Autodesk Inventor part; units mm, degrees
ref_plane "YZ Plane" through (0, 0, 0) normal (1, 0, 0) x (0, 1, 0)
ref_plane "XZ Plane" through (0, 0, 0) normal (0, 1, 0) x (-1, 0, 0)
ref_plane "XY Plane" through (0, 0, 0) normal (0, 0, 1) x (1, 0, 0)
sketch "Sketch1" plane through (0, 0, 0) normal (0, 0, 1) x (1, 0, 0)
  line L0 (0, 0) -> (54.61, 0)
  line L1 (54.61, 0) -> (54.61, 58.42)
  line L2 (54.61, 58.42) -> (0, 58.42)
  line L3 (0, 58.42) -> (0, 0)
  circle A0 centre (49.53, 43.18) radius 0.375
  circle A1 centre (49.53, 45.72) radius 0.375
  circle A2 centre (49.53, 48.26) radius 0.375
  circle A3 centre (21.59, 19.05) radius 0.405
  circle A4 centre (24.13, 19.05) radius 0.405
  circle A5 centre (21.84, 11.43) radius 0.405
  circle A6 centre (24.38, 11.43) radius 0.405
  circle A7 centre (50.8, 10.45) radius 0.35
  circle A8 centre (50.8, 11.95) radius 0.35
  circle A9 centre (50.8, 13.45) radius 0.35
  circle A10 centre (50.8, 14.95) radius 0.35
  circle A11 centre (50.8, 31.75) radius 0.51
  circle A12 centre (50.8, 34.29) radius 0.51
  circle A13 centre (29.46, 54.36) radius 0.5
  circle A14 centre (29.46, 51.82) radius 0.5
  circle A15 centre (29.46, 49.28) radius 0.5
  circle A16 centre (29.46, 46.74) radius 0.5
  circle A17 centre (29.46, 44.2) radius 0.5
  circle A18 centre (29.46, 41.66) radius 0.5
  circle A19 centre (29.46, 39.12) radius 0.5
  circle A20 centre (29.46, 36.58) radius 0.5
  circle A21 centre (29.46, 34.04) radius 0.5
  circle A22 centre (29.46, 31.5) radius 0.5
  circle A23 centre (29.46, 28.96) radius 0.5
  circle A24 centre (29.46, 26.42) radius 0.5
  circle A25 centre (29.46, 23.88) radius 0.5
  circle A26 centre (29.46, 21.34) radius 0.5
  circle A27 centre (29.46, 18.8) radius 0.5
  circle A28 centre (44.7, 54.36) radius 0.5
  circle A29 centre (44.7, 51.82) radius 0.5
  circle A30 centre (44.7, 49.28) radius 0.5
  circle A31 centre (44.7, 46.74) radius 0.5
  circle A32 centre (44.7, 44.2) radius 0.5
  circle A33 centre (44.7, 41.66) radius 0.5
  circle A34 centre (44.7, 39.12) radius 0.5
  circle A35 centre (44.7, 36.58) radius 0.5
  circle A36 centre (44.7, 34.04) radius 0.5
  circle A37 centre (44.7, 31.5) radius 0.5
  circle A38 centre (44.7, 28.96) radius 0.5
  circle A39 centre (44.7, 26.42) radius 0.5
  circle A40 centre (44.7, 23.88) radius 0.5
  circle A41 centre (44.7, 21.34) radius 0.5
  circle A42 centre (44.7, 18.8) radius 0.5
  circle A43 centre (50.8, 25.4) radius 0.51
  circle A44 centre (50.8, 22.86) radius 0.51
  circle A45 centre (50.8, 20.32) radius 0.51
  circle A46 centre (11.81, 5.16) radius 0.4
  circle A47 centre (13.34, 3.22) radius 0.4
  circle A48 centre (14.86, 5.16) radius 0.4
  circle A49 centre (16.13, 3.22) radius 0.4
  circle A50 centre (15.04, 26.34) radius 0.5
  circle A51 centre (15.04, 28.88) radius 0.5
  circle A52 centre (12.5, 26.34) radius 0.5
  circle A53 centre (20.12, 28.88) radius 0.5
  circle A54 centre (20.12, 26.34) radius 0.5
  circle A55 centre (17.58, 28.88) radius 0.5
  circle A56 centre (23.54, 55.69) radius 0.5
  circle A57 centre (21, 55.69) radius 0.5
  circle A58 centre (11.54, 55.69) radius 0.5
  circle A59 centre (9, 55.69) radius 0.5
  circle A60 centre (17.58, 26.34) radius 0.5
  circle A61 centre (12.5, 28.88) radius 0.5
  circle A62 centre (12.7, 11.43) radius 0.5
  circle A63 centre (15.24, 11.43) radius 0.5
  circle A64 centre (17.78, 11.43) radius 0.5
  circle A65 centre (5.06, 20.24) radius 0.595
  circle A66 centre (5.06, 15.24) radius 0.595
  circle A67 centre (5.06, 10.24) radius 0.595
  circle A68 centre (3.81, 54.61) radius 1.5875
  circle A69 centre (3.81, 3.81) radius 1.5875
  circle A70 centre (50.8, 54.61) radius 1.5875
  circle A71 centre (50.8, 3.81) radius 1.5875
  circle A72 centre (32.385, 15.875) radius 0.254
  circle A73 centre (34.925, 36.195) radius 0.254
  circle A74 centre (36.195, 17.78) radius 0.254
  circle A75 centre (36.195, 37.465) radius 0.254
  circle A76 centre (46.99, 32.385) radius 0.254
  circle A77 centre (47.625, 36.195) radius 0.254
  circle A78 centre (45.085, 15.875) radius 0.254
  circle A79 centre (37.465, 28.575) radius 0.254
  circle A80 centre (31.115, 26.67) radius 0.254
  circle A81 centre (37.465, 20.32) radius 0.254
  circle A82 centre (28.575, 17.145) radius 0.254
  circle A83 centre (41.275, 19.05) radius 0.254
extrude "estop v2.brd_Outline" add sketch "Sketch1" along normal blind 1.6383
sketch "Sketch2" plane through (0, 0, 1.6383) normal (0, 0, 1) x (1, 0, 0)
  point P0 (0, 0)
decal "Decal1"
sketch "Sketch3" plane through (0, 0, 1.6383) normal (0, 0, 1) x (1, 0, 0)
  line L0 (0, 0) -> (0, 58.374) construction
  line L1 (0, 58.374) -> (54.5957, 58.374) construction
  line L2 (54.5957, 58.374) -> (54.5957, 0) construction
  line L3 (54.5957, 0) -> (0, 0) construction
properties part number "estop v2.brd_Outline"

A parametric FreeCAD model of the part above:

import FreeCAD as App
import Part
import Sketcher
Q = App.Units.Quantity

doc = App.newDocument("Part")
body = doc.addObject("PartDesign::Body", "Body")

# Sketch on XY plane
sketch1 = body.newObject("Sketcher::SketchObject", "Sketch")
sketch1.AttachmentSupport = (doc.getObject("XY_Plane"), [""])
sketch1.MapMode = "FlatFace"
sketch1.addGeometry([
    Part.LineSegment(App.Vector(0, 58.42, 0), App.Vector(0, 0, 0)),  # 0
    Part.LineSegment(App.Vector(0, 0, 0), App.Vector(54.61, 0, 0)),  # 1
    Part.LineSegment(App.Vector(54.61, 0, 0), App.Vector(54.61, 58.42, 0)),  # 2
    Part.LineSegment(App.Vector(54.61, 58.42, 0), App.Vector(0, 58.42, 0)),  # 3
    Part.Circle(App.Vector(3.81, 3.81, 0), App.Vector(0, 0, 1), 1.5875),  # 4
    Part.Circle(App.Vector(13.34, 3.22, 0), App.Vector(0, 0, 1), 0.4),  # 5
    Part.Circle(App.Vector(11.81, 5.16, 0), App.Vector(0, 0, 1), 0.4),  # 6
    Part.Circle(App.Vector(5.06, 10.24, 0), App.Vector(0, 0, 1), 0.595),  # 7
    Part.Circle(App.Vector(12.7, 11.43, 0), App.Vector(0, 0, 1), 0.5),  # 8
    Part.Circle(App.Vector(16.13, 3.22, 0), App.Vector(0, 0, 1), 0.4),  # 9
    Part.Circle(App.Vector(14.86, 5.16, 0), App.Vector(0, 0, 1), 0.4),  # 10
    Part.Circle(App.Vector(15.24, 11.43, 0), App.Vector(0, 0, 1), 0.5),  # 11
    Part.Circle(App.Vector(17.78, 11.43, 0), App.Vector(0, 0, 1), 0.5),  # 12
    Part.Circle(App.Vector(21.84, 11.43, 0), App.Vector(0, 0, 1), 0.405),  # 13
    Part.Circle(App.Vector(24.38, 11.43, 0), App.Vector(0, 0, 1), 0.405),  # 14
    Part.Circle(App.Vector(5.06, 15.24, 0), App.Vector(0, 0, 1), 0.595),  # 15
    Part.Circle(App.Vector(5.06, 20.24, 0), App.Vector(0, 0, 1), 0.595),  # 16
    Part.Circle(App.Vector(12.5, 26.34, 0), App.Vector(0, 0, 1), 0.5),  # 17
    Part.Circle(App.Vector(12.5, 28.88, 0), App.Vector(0, 0, 1), 0.5),  # 18
    Part.Circle(App.Vector(21.59, 19.05, 0), App.Vector(0, 0, 1), 0.405),  # 19
    Part.Circle(App.Vector(24.13, 19.05, 0), App.Vector(0, 0, 1), 0.405),  # 20
    Part.Circle(App.Vector(15.04, 26.34, 0), App.Vector(0, 0, 1), 0.5),  # 21
    Part.Circle(App.Vector(15.04, 28.88, 0), App.Vector(0, 0, 1), 0.5),  # 22
    Part.Circle(App.Vector(17.58, 26.34, 0), App.Vector(0, 0, 1), 0.5),  # 23
    Part.Circle(App.Vector(20.12, 26.34, 0), App.Vector(0, 0, 1), 0.5),  # 24
    Part.Circle(App.Vector(17.58, 28.88, 0), App.Vector(0, 0, 1), 0.5),  # 25
    Part.Circle(App.Vector(20.12, 28.88, 0), App.Vector(0, 0, 1), 0.5),  # 26
    Part.Circle(App.Vector(50.8, 3.81, 0), App.Vector(0, 0, 1), 1.5875),  # 27
    Part.Circle(App.Vector(50.8, 10.45, 0), App.Vector(0, 0, 1), 0.35),  # 28
    Part.Circle(App.Vector(50.8, 11.95, 0), App.Vector(0, 0, 1), 0.35),  # 29
    Part.Circle(App.Vector(50.8, 13.45, 0), App.Vector(0, 0, 1), 0.35),  # 30
    Part.Circle(App.Vector(28.575, 17.145, 0), App.Vector(0, 0, 1), 0.254),  # 31
    Part.Circle(App.Vector(32.385, 15.875, 0), App.Vector(0, 0, 1), 0.254),  # 32
    Part.Circle(App.Vector(29.46, 18.8, 0), App.Vector(0, 0, 1), 0.5),  # 33
    Part.Circle(App.Vector(29.46, 21.34, 0), App.Vector(0, 0, 1), 0.5),  # 34
    Part.Circle(App.Vector(36.195, 17.78, 0), App.Vector(0, 0, 1), 0.254),  # 35
    Part.Circle(App.Vector(37.465, 20.32, 0), App.Vector(0, 0, 1), 0.254),  # 36
    Part.Circle(App.Vector(29.46, 23.88, 0), App.Vector(0, 0, 1), 0.5),  # 37
    Part.Circle(App.Vector(29.46, 26.42, 0), App.Vector(0, 0, 1), 0.5),  # 38
    Part.Circle(App.Vector(29.46, 28.96, 0), App.Vector(0, 0, 1), 0.5),  # 39
    Part.Circle(App.Vector(31.115, 26.67, 0), App.Vector(0, 0, 1), 0.254),  # 40
    Part.Circle(App.Vector(37.465, 28.575, 0), App.Vector(0, 0, 1), 0.254),  # 41
    Part.Circle(App.Vector(45.085, 15.875, 0), App.Vector(0, 0, 1), 0.254),  # 42
    Part.Circle(App.Vector(41.275, 19.05, 0), App.Vector(0, 0, 1), 0.254),  # 43
    Part.Circle(App.Vector(44.7, 18.8, 0), App.Vector(0, 0, 1), 0.5),  # 44
    Part.Circle(App.Vector(44.7, 21.34, 0), App.Vector(0, 0, 1), 0.5),  # 45
    Part.Circle(App.Vector(50.8, 14.95, 0), App.Vector(0, 0, 1), 0.35),  # 46
    Part.Circle(App.Vector(50.8, 20.32, 0), App.Vector(0, 0, 1), 0.51),  # 47
    Part.Circle(App.Vector(44.7, 23.88, 0), App.Vector(0, 0, 1), 0.5),  # 48
    Part.Circle(App.Vector(44.7, 26.42, 0), App.Vector(0, 0, 1), 0.5),  # 49
    Part.Circle(App.Vector(44.7, 28.96, 0), App.Vector(0, 0, 1), 0.5),  # 50
    Part.Circle(App.Vector(50.8, 22.86, 0), App.Vector(0, 0, 1), 0.51),  # 51
    Part.Circle(App.Vector(50.8, 25.4, 0), App.Vector(0, 0, 1), 0.51),  # 52
    Part.Circle(App.Vector(3.81, 54.61, 0), App.Vector(0, 0, 1), 1.5875),  # 53
    Part.Circle(App.Vector(9, 55.69, 0), App.Vector(0, 0, 1), 0.5),  # 54
    Part.Circle(App.Vector(11.54, 55.69, 0), App.Vector(0, 0, 1), 0.5),  # 55
    Part.Circle(App.Vector(21, 55.69, 0), App.Vector(0, 0, 1), 0.5),  # 56
    Part.Circle(App.Vector(23.54, 55.69, 0), App.Vector(0, 0, 1), 0.5),  # 57
    Part.Circle(App.Vector(29.46, 31.5, 0), App.Vector(0, 0, 1), 0.5),  # 58
    Part.Circle(App.Vector(29.46, 34.04, 0), App.Vector(0, 0, 1), 0.5),  # 59
    Part.Circle(App.Vector(34.925, 36.195, 0), App.Vector(0, 0, 1), 0.254),  # 60
    Part.Circle(App.Vector(29.46, 36.58, 0), App.Vector(0, 0, 1), 0.5),  # 61
    Part.Circle(App.Vector(29.46, 39.12, 0), App.Vector(0, 0, 1), 0.5),  # 62
    Part.Circle(App.Vector(29.46, 41.66, 0), App.Vector(0, 0, 1), 0.5),  # 63
    Part.Circle(App.Vector(36.195, 37.465, 0), App.Vector(0, 0, 1), 0.254),  # 64
    Part.Circle(App.Vector(44.7, 31.5, 0), App.Vector(0, 0, 1), 0.5),  # 65
    Part.Circle(App.Vector(46.99, 32.385, 0), App.Vector(0, 0, 1), 0.254),  # 66
    Part.Circle(App.Vector(44.7, 34.04, 0), App.Vector(0, 0, 1), 0.5),  # 67
    Part.Circle(App.Vector(47.625, 36.195, 0), App.Vector(0, 0, 1), 0.254),  # 68
    Part.Circle(App.Vector(50.8, 31.75, 0), App.Vector(0, 0, 1), 0.51),  # 69
    Part.Circle(App.Vector(50.8, 34.29, 0), App.Vector(0, 0, 1), 0.51),  # 70
    Part.Circle(App.Vector(44.7, 36.58, 0), App.Vector(0, 0, 1), 0.5),  # 71
    Part.Circle(App.Vector(44.7, 39.12, 0), App.Vector(0, 0, 1), 0.5),  # 72
    Part.Circle(App.Vector(44.7, 41.66, 0), App.Vector(0, 0, 1), 0.5),  # 73
    Part.Circle(App.Vector(49.53, 43.18, 0), App.Vector(0, 0, 1), 0.375),  # 74
    Part.Circle(App.Vector(29.46, 44.2, 0), App.Vector(0, 0, 1), 0.5),  # 75
    Part.Circle(App.Vector(29.46, 46.74, 0), App.Vector(0, 0, 1), 0.5),  # 76
    Part.Circle(App.Vector(29.46, 49.28, 0), App.Vector(0, 0, 1), 0.5),  # 77
    Part.Circle(App.Vector(29.46, 51.82, 0), App.Vector(0, 0, 1), 0.5),  # 78
    Part.Circle(App.Vector(29.46, 54.36, 0), App.Vector(0, 0, 1), 0.5),  # 79
    Part.Circle(App.Vector(44.7, 44.2, 0), App.Vector(0, 0, 1), 0.5),  # 80
    Part.Circle(App.Vector(44.7, 46.74, 0), App.Vector(0, 0, 1), 0.5),  # 81
    Part.Circle(App.Vector(44.7, 49.28, 0), App.Vector(0, 0, 1), 0.5),  # 82
    Part.Circle(App.Vector(49.53, 45.72, 0), App.Vector(0, 0, 1), 0.375),  # 83
    Part.Circle(App.Vector(49.53, 48.26, 0), App.Vector(0, 0, 1), 0.375),  # 84
    Part.Circle(App.Vector(44.7, 51.82, 0), App.Vector(0, 0, 1), 0.5),  # 85
    Part.Circle(App.Vector(44.7, 54.36, 0), App.Vector(0, 0, 1), 0.5),  # 86
    Part.Circle(App.Vector(50.8, 54.61, 0), App.Vector(0, 0, 1), 1.5875),  # 87
], False)
sketch1.addConstraint([
    Sketcher.Constraint("Coincident", 0, 2, 1, 1),
    Sketcher.Constraint("Coincident", 1, 2, 2, 1),
    Sketcher.Constraint("Coincident", 2, 2, 3, 1),
    Sketcher.Constraint("Coincident", 3, 2, 0, 1),
    Sketcher.Constraint("Vertical", 0),
    Sketcher.Constraint("Horizontal", 1),
    Sketcher.Constraint("Vertical", 2),
    Sketcher.Constraint("Horizontal", 3),
    Sketcher.Constraint("Coincident", 0, 2, -1, 1),
    Sketcher.Constraint("Equal", 5, 6),
    Sketcher.Constraint("Equal", 6, 9),
    Sketcher.Constraint("Equal", 9, 10),
    Sketcher.Constraint("Equal", 8, 11),
    Sketcher.Constraint("Equal", 11, 12),
    Sketcher.Constraint("Equal", 13, 14),
    Sketcher.Constraint("Equal", 7, 15),
    Sketcher.Constraint("Equal", 15, 16),
    Sketcher.Constraint("Equal", 12, 17),
    Sketcher.Constraint("Equal", 17, 18),
    Sketcher.Constraint("Equal", 14, 19),
    Sketcher.Constraint("Equal", 19, 20),
    Sketcher.Constraint("Equal", 18, 21),
    Sketcher.Constraint("Equal", 21, 22),
    Sketcher.Constraint("Equal", 22, 23),
    Sketcher.Constraint("Equal", 23, 24),
    Sketcher.Constraint("Equal", 24, 25),
    Sketcher.Constraint("Equal", 25, 26),
    Sketcher.Constraint("Equal", 4, 27),
    Sketcher.Constraint("Equal", 28, 29),
    Sketcher.Constraint("Equal", 29, 30),
    Sketcher.Constraint("Equal", 31, 32),
    Sketcher.Constraint("Equal", 26, 33),
    Sketcher.Constraint("Equal", 33, 34),
    Sketcher.Constraint("Equal", 32, 35),
    Sketcher.Constraint("Equal", 35, 36),
    Sketcher.Constraint("Equal", 34, 37),
    Sketcher.Constraint("Equal", 37, 38),
    Sketcher.Constraint("Equal", 38, 39),
    Sketcher.Constraint("Equal", 36, 40),
    Sketcher.Constraint("Equal", 40, 41),
    Sketcher.Constraint("Equal", 41, 42),
    Sketcher.Constraint("Equal", 42, 43),
    Sketcher.Constraint("Equal", 39, 44),
    Sketcher.Constraint("Equal", 44, 45),
    Sketcher.Constraint("Equal", 30, 46),
    Sketcher.Constraint("Equal", 45, 48),
    Sketcher.Constraint("Equal", 48, 49),
    Sketcher.Constraint("Equal", 49, 50),
    Sketcher.Constraint("Equal", 47, 51),
    Sketcher.Constraint("Equal", 51, 52),
    Sketcher.Constraint("Equal", 27, 53),
    Sketcher.Constraint("Equal", 50, 54),
    Sketcher.Constraint("Equal", 54, 55),
    Sketcher.Constraint("Equal", 55, 56),
    Sketcher.Constraint("Equal", 56, 57),
    Sketcher.Constraint("Equal", 57, 58),
    Sketcher.Constraint("Equal", 58, 59),
    Sketcher.Constraint("Equal", 43, 60),
    Sketcher.Constraint("Equal", 59, 61),
    Sketcher.Constraint("Equal", 61, 62),
    Sketcher.Constraint("Equal", 62, 63),
    Sketcher.Constraint("Equal", 60, 64),
    Sketcher.Constraint("Equal", 63, 65),
    Sketcher.Constraint("Equal", 64, 66),
    Sketcher.Constraint("Equal", 65, 67),
    Sketcher.Constraint("Equal", 66, 68),
    Sketcher.Constraint("Equal", 52, 69),
    Sketcher.Constraint("Equal", 69, 70),
    Sketcher.Constraint("Equal", 67, 71),
    Sketcher.Constraint("Equal", 71, 72),
    Sketcher.Constraint("Equal", 72, 73),
    Sketcher.Constraint("Equal", 73, 75),
    Sketcher.Constraint("Equal", 75, 76),
    Sketcher.Constraint("Equal", 76, 77),
    Sketcher.Constraint("Equal", 77, 78),
    Sketcher.Constraint("Equal", 78, 79),
    Sketcher.Constraint("Equal", 79, 80),
    Sketcher.Constraint("Equal", 80, 81),
    Sketcher.Constraint("Equal", 81, 82),
    Sketcher.Constraint("Equal", 74, 83),
    Sketcher.Constraint("Equal", 83, 84),
    Sketcher.Constraint("Equal", 82, 85),
    Sketcher.Constraint("Equal", 85, 86),
    Sketcher.Constraint("Equal", 53, 87),
    Sketcher.Constraint("Horizontal", 5, 3, 9, 3),
    Sketcher.Constraint("Horizontal", 6, 3, 10, 3),
    Sketcher.Constraint("Horizontal", 8, 3, 11, 3),
    Sketcher.Constraint("Horizontal", 11, 3, 12, 3),
    Sketcher.Constraint("Horizontal", 12, 3, 13, 3),
    Sketcher.Constraint("Horizontal", 13, 3, 14, 3),
    Sketcher.Constraint("Horizontal", 19, 3, 20, 3),
    Sketcher.Constraint("Horizontal", 17, 3, 21, 3),
    Sketcher.Constraint("Horizontal", 18, 3, 22, 3),
    Sketcher.Constraint("Horizontal", 21, 3, 23, 3),
    Sketcher.Constraint("Horizontal", 23, 3, 24, 3),
    Sketcher.Constraint("Horizontal", 22, 3, 25, 3),
    Sketcher.Constraint("Horizontal", 25, 3, 26, 3),
    Sketcher.Constraint("Horizontal", 4, 3, 27, 3),
    Sketcher.Constraint("Horizontal", 32, 3, 42, 3),
    Sketcher.Constraint("Horizontal", 20, 3, 43, 3),
    Sketcher.Constraint("Horizontal", 33, 3, 44, 3),
    Sketcher.Constraint("Horizontal", 34, 3, 45, 3),
    Sketcher.Constraint("Horizontal", 36, 3, 47, 3),
    Sketcher.Constraint("Horizontal", 37, 3, 48, 3),
    Sketcher.Constraint("Horizontal", 38, 3, 49, 3),
    Sketcher.Constraint("Horizontal", 39, 3, 50, 3),
    Sketcher.Constraint("Horizontal", 54, 3, 55, 3),
    Sketcher.Constraint("Horizontal", 55, 3, 56, 3),
    Sketcher.Constraint("Horizontal", 56, 3, 57, 3),
    Sketcher.Constraint("Horizontal", 58, 3, 65, 3),
    Sketcher.Constraint("Horizontal", 59, 3, 67, 3),
    Sketcher.Constraint("Horizontal", 60, 3, 68, 3),
    Sketcher.Constraint("Horizontal", 61, 3, 71, 3),
    Sketcher.Constraint("Horizontal", 62, 3, 72, 3),
    Sketcher.Constraint("Horizontal", 63, 3, 73, 3),
    Sketcher.Constraint("Horizontal", 75, 3, 80, 3),
    Sketcher.Constraint("Horizontal", 76, 3, 81, 3),
    Sketcher.Constraint("Horizontal", 77, 3, 82, 3),
    Sketcher.Constraint("Horizontal", 78, 3, 85, 3),
    Sketcher.Constraint("Horizontal", 79, 3, 86, 3),
    Sketcher.Constraint("Horizontal", 53, 3, 87, 3),
    Sketcher.Constraint("Vertical", 7, 3, 15, 3),
    Sketcher.Constraint("Vertical", 15, 3, 16, 3),
    Sketcher.Constraint("Vertical", 17, 3, 18, 3),
    Sketcher.Constraint("Vertical", 21, 3, 22, 3),
    Sketcher.Constraint("Vertical", 23, 3, 25, 3),
    Sketcher.Constraint("Vertical", 24, 3, 26, 3),
    Sketcher.Constraint("Vertical", 27, 3, 28, 3),
    Sketcher.Constraint("Vertical", 28, 3, 29, 3),
    Sketcher.Constraint("Vertical", 29, 3, 30, 3),
    Sketcher.Constraint("Vertical", 33, 3, 34, 3),
    Sketcher.Constraint("Vertical", 34, 3, 37, 3),
    Sketcher.Constraint("Vertical", 37, 3, 38, 3),
    Sketcher.Constraint("Vertical", 38, 3, 39, 3),
    Sketcher.Constraint("Vertical", 36, 3, 41, 3),
    Sketcher.Constraint("Vertical", 44, 3, 45, 3),
    Sketcher.Constraint("Vertical", 30, 3, 46, 3),
    Sketcher.Constraint("Vertical", 46, 3, 47, 3),
    Sketcher.Constraint("Vertical", 45, 3, 48, 3),
    Sketcher.Constraint("Vertical", 48, 3, 49, 3),
    Sketcher.Constraint("Vertical", 49, 3, 50, 3),
    Sketcher.Constraint("Vertical", 47, 3, 51, 3),
    Sketcher.Constraint("Vertical", 51, 3, 52, 3),
    Sketcher.Constraint("Vertical", 4, 3, 53, 3),
    Sketcher.Constraint("Vertical", 39, 3, 58, 3),
    Sketcher.Constraint("Vertical", 58, 3, 59, 3),
    Sketcher.Constraint("Vertical", 59, 3, 61, 3),
    Sketcher.Constraint("Vertical", 61, 3, 62, 3),
    Sketcher.Constraint("Vertical", 62, 3, 63, 3),
    Sketcher.Constraint("Vertical", 35, 3, 64, 3),
    Sketcher.Constraint("Vertical", 50, 3, 65, 3),
    Sketcher.Constraint("Vertical", 65, 3, 67, 3),
    Sketcher.Constraint("Vertical", 52, 3, 69, 3),
    Sketcher.Constraint("Vertical", 69, 3, 70, 3),
    Sketcher.Constraint("Vertical", 67, 3, 71, 3),
    Sketcher.Constraint("Vertical", 71, 3, 72, 3),
    Sketcher.Constraint("Vertical", 72, 3, 73, 3),
    Sketcher.Constraint("Vertical", 63, 3, 75, 3),
    Sketcher.Constraint("Vertical", 75, 3, 76, 3),
    Sketcher.Constraint("Vertical", 76, 3, 77, 3),
    Sketcher.Constraint("Vertical", 77, 3, 78, 3),
    Sketcher.Constraint("Vertical", 78, 3, 79, 3),
    Sketcher.Constraint("Vertical", 73, 3, 80, 3),
    Sketcher.Constraint("Vertical", 80, 3, 81, 3),
    Sketcher.Constraint("Vertical", 81, 3, 82, 3),
    Sketcher.Constraint("Vertical", 74, 3, 83, 3),
    Sketcher.Constraint("Vertical", 83, 3, 84, 3),
    Sketcher.Constraint("Vertical", 82, 3, 85, 3),
    Sketcher.Constraint("Vertical", 85, 3, 86, 3),
    Sketcher.Constraint("Vertical", 70, 3, 87, 3),
    Sketcher.Constraint("Diameter", 31, Q("0.02 in")),
    Sketcher.Constraint("Diameter", 4, Q("0.125 in")),
    Sketcher.Constraint("DistanceY", 0, 2, 0, 1, Q("2.3 in")),
    Sketcher.Constraint("DistanceX", -1, 1, 27, 3, Q("2 in")),
    Sketcher.Constraint("DistanceY", -1, 1, 52, 3, Q("1 in")),
    Sketcher.Constraint("Diameter", 5, Q("0.0315 in")),
    Sketcher.Constraint("Diameter", 13, Q("0.0319 in")),
    Sketcher.Constraint("DistanceX", 1, 1, 1, 2, Q("2.15 in")),
    Sketcher.Constraint("DistanceX", -1, 1, 8, 3, Q("0.5 in")),
    Sketcher.Constraint("DistanceX", -1, 1, 11, 3, Q("0.6 in")),
    Sketcher.Constraint("DistanceX", -1, 1, 12, 3, Q("0.7 in")),
    Sketcher.Constraint("DistanceY", -1, 1, 15, 3, Q("0.6 in")),
    Sketcher.Constraint("DistanceY", -1, 1, 35, 3, Q("0.7 in")),
    Sketcher.Constraint("DistanceY", -1, 1, 36, 3, Q("0.8 in")),
    Sketcher.Constraint("DistanceY", -1, 1, 51, 3, Q("0.9 in")),
    Sketcher.Constraint("DistanceY", -1, 1, 74, 3, Q("1.7 in")),
    Sketcher.Constraint("DistanceY", -1, 1, 83, 3, Q("1.8 in")),
    Sketcher.Constraint("DistanceY", -1, 1, 84, 3, Q("1.9 in")),
    Sketcher.Constraint("Diameter", 7, Q("1.19 mm")),
    Sketcher.Constraint("Diameter", 8, Q("1 mm")),
    Sketcher.Constraint("Diameter", 28, Q("0.7 mm")),
    Sketcher.Constraint("Diameter", 47, Q("1.02 mm")),
    Sketcher.Constraint("Diameter", 74, Q("0.75 mm")),
    Sketcher.Constraint("DistanceX", -1, 1, 4, 3, Q("0.15 in")),
    Sketcher.Constraint("DistanceY", -1, 1, 4, 3, Q("0.15 in")),
    Sketcher.Constraint("DistanceY", -1, 1, 8, 3, Q("0.45 in")),
    Sketcher.Constraint("DistanceX", -1, 1, 19, 3, Q("0.85 in")),
    Sketcher.Constraint("DistanceY", -1, 1, 19, 3, Q("0.75 in")),
    Sketcher.Constraint("DistanceX", -1, 1, 20, 3, Q("0.95 in")),
    Sketcher.Constraint("DistanceY", -1, 1, 40, 3, Q("1.05 in")),
    Sketcher.Constraint("DistanceY", -1, 1, 53, 3, Q("2.15 in")),
    Sketcher.Constraint("DistanceX", -1, 1, 66, 3, Q("1.85 in")),
    Sketcher.Constraint("DistanceY", -1, 1, 69, 3, Q("1.25 in")),
    Sketcher.Constraint("DistanceY", -1, 1, 70, 3, Q("1.35 in")),
    Sketcher.Constraint("DistanceX", -1, 1, 74, 3, Q("1.95 in")),
    Sketcher.Constraint("DistanceY", -1, 1, 17, 3, Q("1.037 in")),
    Sketcher.Constraint("DistanceY", -1, 1, 18, 3, Q("1.137 in")),
    Sketcher.Constraint("DistanceX", -1, 1, 31, 3, Q("1.125 in")),
    Sketcher.Constraint("DistanceY", -1, 1, 31, 3, Q("0.675 in")),
    Sketcher.Constraint("DistanceX", -1, 1, 32, 3, Q("1.275 in")),
    Sketcher.Constraint("DistanceY", -1, 1, 32, 3, Q("0.625 in")),
    Sketcher.Constraint("DistanceX", -1, 1, 35, 3, Q("1.425 in")),
    Sketcher.Constraint("DistanceX", -1, 1, 36, 3, Q("1.475 in")),
    Sketcher.Constraint("DistanceX", -1, 1, 40, 3, Q("1.225 in")),
    Sketcher.Constraint("DistanceY", -1, 1, 41, 3, Q("1.125 in")),
    Sketcher.Constraint("DistanceX", -1, 1, 42, 3, Q("1.775 in")),
    Sketcher.Constraint("DistanceX", -1, 1, 43, 3, Q("1.625 in")),
    Sketcher.Constraint("DistanceX", -1, 1, 60, 3, Q("1.375 in")),
    Sketcher.Constraint("DistanceY", -1, 1, 60, 3, Q("1.425 in")),
    Sketcher.Constraint("DistanceY", -1, 1, 64, 3, Q("1.475 in")),
    Sketcher.Constraint("DistanceY", -1, 1, 66, 3, Q("1.275 in")),
    Sketcher.Constraint("DistanceX", -1, 1, 68, 3, Q("1.875 in")),
    Sketcher.Constraint("DistanceX", -1, 1, 5, 3, Q("0.5252 in")),
    Sketcher.Constraint("DistanceY", -1, 1, 5, 3, Q("3.22 mm")),
    Sketcher.Constraint("DistanceX", -1, 1, 6, 3, Q("11.81 mm")),
    Sketcher.Constraint("DistanceY", -1, 1, 6, 3, Q("5.16 mm")),
    Sketcher.Constraint("DistanceX", -1, 1, 7, 3, Q("5.06 mm")),
    Sketcher.Constraint("DistanceY", -1, 1, 7, 3, Q("10.24 mm")),
    Sketcher.Constraint("DistanceX", -1, 1, 9, 3, Q("16.13 mm")),
    Sketcher.Constraint("DistanceX", -1, 1, 10, 3, Q("14.86 mm")),
    Sketcher.Constraint("DistanceX", -1, 1, 13, 3, Q("21.84 mm")),
    Sketcher.Constraint("DistanceX", -1, 1, 14, 3, Q("24.38 mm")),
    Sketcher.Constraint("DistanceY", -1, 1, 16, 3, Q("20.24 mm")),
    Sketcher.Constraint("DistanceX", -1, 1, 17, 3, Q("12.5 mm")),
    Sketcher.Constraint("DistanceX", -1, 1, 21, 3, Q("15.04 mm")),
    Sketcher.Constraint("DistanceX", -1, 1, 23, 3, Q("17.58 mm")),
    Sketcher.Constraint("DistanceX", -1, 1, 24, 3, Q("20.12 mm")),
    Sketcher.Constraint("DistanceY", -1, 1, 28, 3, Q("10.45 mm")),
    Sketcher.Constraint("DistanceY", -1, 1, 29, 3, Q("11.95 mm")),
    Sketcher.Constraint("DistanceY", -1, 1, 30, 3, Q("13.45 mm")),
    Sketcher.Constraint("DistanceX", -1, 1, 33, 3, Q("29.46 mm")),
    Sketcher.Constraint("DistanceY", -1, 1, 33, 3, Q("18.8 mm")),
    Sketcher.Constraint("DistanceY", -1, 1, 34, 3, Q("21.34 mm")),
    Sketcher.Constraint("DistanceY", -1, 1, 37, 3, Q("23.88 mm")),
    Sketcher.Constraint("DistanceY", -1, 1, 38, 3, Q("26.42 mm")),
    Sketcher.Constraint("DistanceY", -1, 1, 39, 3, Q("28.96 mm")),
    Sketcher.Constraint("DistanceX", -1, 1, 44, 3, Q("44.7 mm")),
    Sketcher.Constraint("DistanceY", -1, 1, 46, 3, Q("14.95 mm")),
    Sketcher.Constraint("DistanceX", -1, 1, 54, 3, Q("9 mm")),
    Sketcher.Constraint("DistanceY", -1, 1, 54, 3, Q("55.69 mm")),
    Sketcher.Constraint("DistanceX", -1, 1, 55, 3, Q("11.54 mm")),
    Sketcher.Constraint("DistanceX", -1, 1, 56, 3, Q("21 mm")),
    Sketcher.Constraint("DistanceX", -1, 1, 57, 3, Q("23.54 mm")),
    Sketcher.Constraint("DistanceY", -1, 1, 58, 3, Q("31.5 mm")),
    Sketcher.Constraint("DistanceY", -1, 1, 59, 3, Q("34.04 mm")),
    Sketcher.Constraint("DistanceY", -1, 1, 61, 3, Q("36.58 mm")),
    Sketcher.Constraint("DistanceY", -1, 1, 62, 3, Q("39.12 mm")),
    Sketcher.Constraint("DistanceY", -1, 1, 63, 3, Q("41.66 mm")),
    Sketcher.Constraint("DistanceY", -1, 1, 75, 3, Q("44.2 mm")),
    Sketcher.Constraint("DistanceY", -1, 1, 76, 3, Q("46.74 mm")),
    Sketcher.Constraint("DistanceY", -1, 1, 77, 3, Q("49.28 mm")),
    Sketcher.Constraint("DistanceY", -1, 1, 78, 3, Q("51.82 mm")),
    Sketcher.Constraint("DistanceY", -1, 1, 79, 3, Q("54.36 mm")),
])
pad1 = body.newObject("PartDesign::Pad", "Pad")
pad1.Profile = sketch1
pad1.Length = Q("0.0645 in")

doc.recompute()
